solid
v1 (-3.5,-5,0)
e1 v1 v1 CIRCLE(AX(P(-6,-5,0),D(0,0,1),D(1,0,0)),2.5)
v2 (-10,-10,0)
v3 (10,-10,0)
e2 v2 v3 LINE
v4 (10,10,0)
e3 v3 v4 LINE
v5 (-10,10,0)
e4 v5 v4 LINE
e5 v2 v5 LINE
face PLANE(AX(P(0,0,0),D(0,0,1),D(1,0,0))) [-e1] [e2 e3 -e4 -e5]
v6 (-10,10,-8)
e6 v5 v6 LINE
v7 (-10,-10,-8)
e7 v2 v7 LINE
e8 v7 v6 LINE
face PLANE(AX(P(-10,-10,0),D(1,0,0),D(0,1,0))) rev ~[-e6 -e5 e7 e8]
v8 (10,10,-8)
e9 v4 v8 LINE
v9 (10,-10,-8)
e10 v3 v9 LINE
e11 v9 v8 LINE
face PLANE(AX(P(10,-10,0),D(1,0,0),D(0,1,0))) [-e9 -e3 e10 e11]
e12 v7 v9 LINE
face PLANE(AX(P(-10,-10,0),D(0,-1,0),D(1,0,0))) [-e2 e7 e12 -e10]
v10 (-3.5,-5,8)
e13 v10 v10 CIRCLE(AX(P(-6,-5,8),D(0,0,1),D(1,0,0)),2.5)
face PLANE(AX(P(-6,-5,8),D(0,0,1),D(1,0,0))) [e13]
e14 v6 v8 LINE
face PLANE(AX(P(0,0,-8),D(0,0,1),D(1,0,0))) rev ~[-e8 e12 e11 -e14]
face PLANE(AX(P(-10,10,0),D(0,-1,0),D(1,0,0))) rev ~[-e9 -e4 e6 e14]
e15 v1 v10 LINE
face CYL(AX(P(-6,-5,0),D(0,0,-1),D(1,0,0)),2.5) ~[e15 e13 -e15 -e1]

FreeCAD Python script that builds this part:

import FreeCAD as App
import Part
import Sketcher

V = App.Vector

doc = App.newDocument("Part")
body = doc.addObject("PartDesign::Body", "Body")

# Sketch on XY plane
sketch1 = body.newObject("Sketcher::SketchObject", "Sketch")
sketch1.AttachmentSupport = (doc.getObject("XY_Plane"), [""])
sketch1.MapMode = "FlatFace"
sketch1.addGeometry(Part.Circle(V(-6, -5, 0), V(0, 0, 1), 2.5), False)
sketch1.addConstraint([
    Sketcher.Constraint("Diameter", 0, 5.0),
    Sketcher.Constraint("DistanceX", 0, 3, -1, 1, 6.0),
    Sketcher.Constraint("DistanceY", 0, 3, -1, 1, 5.0),
])
pad1 = body.newObject("PartDesign::Pad", "Pad")
pad1.Profile = sketch1
pad1.Length = 8

# Sketch on XY plane
sketch2 = body.newObject("Sketcher::SketchObject", "Sketch001")
sketch2.AttachmentSupport = (doc.getObject("XY_Plane"), [""])
sketch2.MapMode = "FlatFace"
sketch2.addGeometry([
    Part.LineSegment(V(-10, 10, 0), V(-10, -10, 0)),
    Part.LineSegment(V(-10, -10, 0), V(10, -10, 0)),
    Part.LineSegment(V(10, -10, 0), V(10, 10, 0)),
    Part.LineSegment(V(10, 10, 0), V(-10, 10, 0)),
], False)
sketch2.addConstraint([
    Sketcher.Constraint("Coincident", 0, 2, 1, 1),
    Sketcher.Constraint("Coincident", 1, 2, 2, 1),
    Sketcher.Constraint("Coincident", 2, 2, 3, 1),
    Sketcher.Constraint("Coincident", 3, 2, 0, 1),
    Sketcher.Constraint("Vertical", 0),
    Sketcher.Constraint("Horizontal", 1),
    Sketcher.Constraint("Vertical", 2),
    Sketcher.Constraint("Horizontal", 3),
    Sketcher.Constraint("Symmetric", 0, 2, 2, 2, -1, 1),
    Sketcher.Constraint("Equal", 3, 0),
    Sketcher.Constraint("DistanceX", 1, 1, 1, 2, 20.0),
])
pad2 = body.newObject("PartDesign::Pad", "Pad001")
pad2.Profile = sketch2
pad2.Length = 8
pad2.Reversed = True

doc.recompute()
